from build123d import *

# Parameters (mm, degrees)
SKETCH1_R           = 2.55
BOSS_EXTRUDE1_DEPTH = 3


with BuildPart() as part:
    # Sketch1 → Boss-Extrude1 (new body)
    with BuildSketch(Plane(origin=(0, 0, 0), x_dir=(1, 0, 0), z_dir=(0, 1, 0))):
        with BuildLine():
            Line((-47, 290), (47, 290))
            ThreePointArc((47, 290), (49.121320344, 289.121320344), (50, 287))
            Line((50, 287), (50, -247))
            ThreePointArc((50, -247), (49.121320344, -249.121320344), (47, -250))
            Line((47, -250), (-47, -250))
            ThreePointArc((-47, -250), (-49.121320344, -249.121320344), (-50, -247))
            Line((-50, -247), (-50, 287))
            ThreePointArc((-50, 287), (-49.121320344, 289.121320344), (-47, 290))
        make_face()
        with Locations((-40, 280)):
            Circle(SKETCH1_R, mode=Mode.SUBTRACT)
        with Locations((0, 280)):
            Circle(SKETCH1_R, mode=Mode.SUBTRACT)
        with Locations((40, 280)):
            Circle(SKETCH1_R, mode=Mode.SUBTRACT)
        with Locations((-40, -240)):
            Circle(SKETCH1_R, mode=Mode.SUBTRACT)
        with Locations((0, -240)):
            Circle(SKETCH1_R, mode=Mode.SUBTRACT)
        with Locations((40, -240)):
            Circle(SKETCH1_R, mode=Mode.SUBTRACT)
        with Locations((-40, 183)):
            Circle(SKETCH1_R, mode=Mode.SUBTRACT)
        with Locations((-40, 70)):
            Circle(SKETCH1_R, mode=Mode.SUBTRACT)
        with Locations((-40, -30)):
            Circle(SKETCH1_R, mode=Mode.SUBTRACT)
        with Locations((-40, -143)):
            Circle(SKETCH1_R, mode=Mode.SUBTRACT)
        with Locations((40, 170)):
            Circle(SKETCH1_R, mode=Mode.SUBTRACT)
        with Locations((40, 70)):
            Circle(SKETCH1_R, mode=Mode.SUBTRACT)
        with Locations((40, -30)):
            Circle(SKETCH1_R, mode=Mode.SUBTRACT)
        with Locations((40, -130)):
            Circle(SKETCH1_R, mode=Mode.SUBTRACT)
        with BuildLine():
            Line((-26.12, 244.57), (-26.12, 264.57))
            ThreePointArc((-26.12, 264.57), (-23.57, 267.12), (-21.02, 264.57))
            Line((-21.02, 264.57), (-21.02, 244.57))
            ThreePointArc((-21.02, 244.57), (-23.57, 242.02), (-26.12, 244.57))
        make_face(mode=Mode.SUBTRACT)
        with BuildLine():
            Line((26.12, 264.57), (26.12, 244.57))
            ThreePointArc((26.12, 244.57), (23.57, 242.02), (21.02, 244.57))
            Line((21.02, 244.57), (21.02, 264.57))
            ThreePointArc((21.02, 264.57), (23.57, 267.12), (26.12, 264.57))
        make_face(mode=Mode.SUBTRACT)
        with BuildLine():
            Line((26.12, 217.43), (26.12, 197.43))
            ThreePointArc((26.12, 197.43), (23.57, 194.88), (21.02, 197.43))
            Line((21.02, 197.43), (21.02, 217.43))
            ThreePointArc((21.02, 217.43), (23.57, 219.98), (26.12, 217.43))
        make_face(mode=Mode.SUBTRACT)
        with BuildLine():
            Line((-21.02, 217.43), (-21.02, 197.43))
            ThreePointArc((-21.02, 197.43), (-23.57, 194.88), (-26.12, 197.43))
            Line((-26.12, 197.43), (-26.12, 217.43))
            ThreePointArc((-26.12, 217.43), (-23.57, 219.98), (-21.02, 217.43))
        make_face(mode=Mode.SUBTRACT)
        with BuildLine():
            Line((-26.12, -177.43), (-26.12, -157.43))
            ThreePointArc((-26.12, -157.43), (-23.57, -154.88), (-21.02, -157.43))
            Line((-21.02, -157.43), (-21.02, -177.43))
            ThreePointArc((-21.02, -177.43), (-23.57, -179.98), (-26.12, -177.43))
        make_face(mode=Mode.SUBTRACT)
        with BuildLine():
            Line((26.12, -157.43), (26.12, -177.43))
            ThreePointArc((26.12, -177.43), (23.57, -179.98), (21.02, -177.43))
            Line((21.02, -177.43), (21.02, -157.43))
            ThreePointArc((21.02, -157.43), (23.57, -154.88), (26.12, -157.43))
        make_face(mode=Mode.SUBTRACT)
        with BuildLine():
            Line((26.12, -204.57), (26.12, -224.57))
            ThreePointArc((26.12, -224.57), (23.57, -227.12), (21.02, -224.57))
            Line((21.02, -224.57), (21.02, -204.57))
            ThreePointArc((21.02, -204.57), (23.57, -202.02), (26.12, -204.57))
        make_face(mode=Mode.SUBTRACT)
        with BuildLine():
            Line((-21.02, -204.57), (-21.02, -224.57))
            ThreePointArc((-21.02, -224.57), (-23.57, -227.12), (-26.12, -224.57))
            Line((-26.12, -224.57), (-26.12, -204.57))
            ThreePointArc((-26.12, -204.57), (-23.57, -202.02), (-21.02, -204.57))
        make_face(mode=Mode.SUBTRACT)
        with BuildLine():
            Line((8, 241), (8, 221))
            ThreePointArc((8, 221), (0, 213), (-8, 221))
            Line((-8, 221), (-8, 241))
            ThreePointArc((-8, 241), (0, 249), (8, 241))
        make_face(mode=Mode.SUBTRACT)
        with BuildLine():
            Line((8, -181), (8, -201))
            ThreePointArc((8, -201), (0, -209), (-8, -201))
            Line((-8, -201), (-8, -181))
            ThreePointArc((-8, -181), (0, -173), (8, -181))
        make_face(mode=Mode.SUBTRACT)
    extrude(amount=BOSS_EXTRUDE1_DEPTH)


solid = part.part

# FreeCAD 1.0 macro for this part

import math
import FreeCAD as App
import Part
import Sketcher
from FreeCAD import Vector

doc = App.newDocument("Part")
params = doc.addObject("Spreadsheet::Sheet", "Params")
for row, (alias, value) in enumerate([
    ("sketch1_radius", "3 mm"),
    ("sketch1_radius2", "8 mm"),
    ("sketch1_diameter", "5.1 mm"),
    ("sketch1_width", "94 mm"),
    ("sketch1_height", "534 mm"),
    ("pad1_length", "3 mm"),
], start=1):
    params.set(f"A{row}", alias)
    params.set(f"B{row}", "=" + value)
    params.setAlias(f"B{row}", alias)

body = doc.addObject("PartDesign::Body", "Body")

# Sketch on XZ plane
sketch1 = body.newObject("Sketcher::SketchObject", "Sketch")
sketch1.AttachmentSupport = (doc.getObject("XZ_Plane"), [""])
sketch1.MapMode = "FlatFace"
sketch1.addGeometry([
    Part.LineSegment(Vector(47, -290, 0), Vector(-47, -290, 0)),  # 0
    Part.ArcOfCircle(Part.Circle(Vector(-47, -287, 0), Vector(0, 0, 1), 3), math.radians(180), math.radians(270)),  # 1
    Part.LineSegment(Vector(-50, -287, 0), Vector(-50, 247, 0)),  # 2
    Part.ArcOfCircle(Part.Circle(Vector(-47, 247, 0), Vector(0, 0, 1), 3), math.radians(90), math.radians(180)),  # 3
    Part.LineSegment(Vector(-47, 250, 0), Vector(47, 250, 0)),  # 4
    Part.ArcOfCircle(Part.Circle(Vector(47, 247, 0), Vector(0, 0, 1), 3), math.radians(0), math.radians(90)),  # 5
    Part.LineSegment(Vector(50, 247, 0), Vector(50, -287, 0)),  # 6
    Part.ArcOfCircle(Part.Circle(Vector(47, -287, 0), Vector(0, 0, 1), 3), math.radians(-90), math.radians(0)),  # 7
    Part.Circle(Vector(40, 240, 0), Vector(0, 0, 1), 2.5),  # 8
    Part.LineSegment(Vector(26.1, 204.6, 0), Vector(26.1, 224.6, 0)),  # 9
    Part.ArcOfCircle(Part.Circle(Vector(23.6, 224.6, 0), Vector(0, 0, 1), 2.5), math.radians(0), math.radians(180)),  # 10
    Part.LineSegment(Vector(21, 224.6, 0), Vector(21, 204.6, 0)),  # 11
    Part.ArcOfCircle(Part.Circle(Vector(23.6, 204.6, 0), Vector(0, 0, 1), 2.5), math.radians(180), math.radians(360)),  # 12
    Part.Circle(Vector(40, 130, 0), Vector(0, 0, 1), 2.5),  # 13
    Part.LineSegment(Vector(26.1, 157.4, 0), Vector(26.1, 177.4, 0)),  # 14
    Part.ArcOfCircle(Part.Circle(Vector(23.6, 177.4, 0), Vector(0, 0, 1), 2.5), math.radians(0), math.radians(180)),  # 15
    Part.LineSegment(Vector(21, 177.4, 0), Vector(21, 157.4, 0)),  # 16
    Part.ArcOfCircle(Part.Circle(Vector(23.6, 157.4, 0), Vector(0, 0, 1), 2.5), math.radians(180), math.radians(360)),  # 17
    Part.Circle(Vector(0, 240, 0), Vector(0, 0, 1), 2.5),  # 18
    Part.LineSegment(Vector(8, 181, 0), Vector(8, 201, 0)),  # 19
    Part.ArcOfCircle(Part.Circle(Vector(0, 201, 0), Vector(0, 0, 1), 8), math.radians(0), math.radians(180)),  # 20
    Part.LineSegment(Vector(-8, 201, 0), Vector(-8, 181, 0)),  # 21
    Part.ArcOfCircle(Part.Circle(Vector(0, 181, 0), Vector(0, 0, 1), 8), math.radians(180), math.radians(360)),  # 22
    Part.Circle(Vector(40, 30, 0), Vector(0, 0, 1), 2.5),  # 23
    Part.LineSegment(Vector(-21, 204.6, 0), Vector(-21, 224.6, 0)),  # 24
    Part.ArcOfCircle(Part.Circle(Vector(-23.6, 224.6, 0), Vector(0, 0, 1), 2.5), math.radians(0), math.radians(180)),  # 25
    Part.LineSegment(Vector(-26.1, 224.6, 0), Vector(-26.1, 204.6, 0)),  # 26
    Part.ArcOfCircle(Part.Circle(Vector(-23.6, 204.6, 0), Vector(0, 0, 1), 2.5), math.radians(180), math.radians(360)),  # 27
    Part.Circle(Vector(-40, 240, 0), Vector(0, 0, 1), 2.5),  # 28
    Part.LineSegment(Vector(-26.1, 177.4, 0), Vector(-26.1, 157.4, 0)),  # 29
    Part.ArcOfCircle(Part.Circle(Vector(-23.6, 157.4, 0), Vector(0, 0, 1), 2.5), math.radians(180), math.radians(360)),  # 30
    Part.LineSegment(Vector(-21, 157.4, 0), Vector(-21, 177.4, 0)),  # 31
    Part.ArcOfCircle(Part.Circle(Vector(-23.6, 177.4, 0), Vector(0, 0, 1), 2.5), math.radians(0), math.radians(180)),  # 32
    Part.Circle(Vector(-40, 143, 0), Vector(0, 0, 1), 2.5),  # 33
    Part.Circle(Vector(-40, 30, 0), Vector(0, 0, 1), 2.5),  # 34
    Part.Circle(Vector(40, -70, 0), Vector(0, 0, 1), 2.5),  # 35
    Part.Circle(Vector(40, -170, 0), Vector(0, 0, 1), 2.5),  # 36
    Part.LineSegment(Vector(26.1, -217.4, 0), Vector(26.1, -197.4, 0)),  # 37
    Part.ArcOfCircle(Part.Circle(Vector(23.6, -197.4, 0), Vector(0, 0, 1), 2.5), math.radians(0), math.radians(180)),  # 38
    Part.LineSegment(Vector(21, -197.4, 0), Vector(21, -217.4, 0)),  # 39
    Part.ArcOfCircle(Part.Circle(Vector(23.6, -217.4, 0), Vector(0, 0, 1), 2.5), math.radians(180), math.radians(360)),  # 40
    Part.Circle(Vector(40, -280, 0), Vector(0, 0, 1), 2.5),  # 41
    Part.LineSegment(Vector(26.1, -264.6, 0), Vector(26.1, -244.6, 0)),  # 42
    Part.ArcOfCircle(Part.Circle(Vector(23.6, -244.6, 0), Vector(0, 0, 1), 2.5), math.radians(0), math.radians(180)),  # 43
    Part.LineSegment(Vector(21, -244.6, 0), Vector(21, -264.6, 0)),  # 44
    Part.ArcOfCircle(Part.Circle(Vector(23.6, -264.6, 0), Vector(0, 0, 1), 2.5), math.radians(180), math.radians(360)),  # 45
    Part.LineSegment(Vector(8, -241, 0), Vector(8, -221, 0)),  # 46
    Part.ArcOfCircle(Part.Circle(Vector(0, -221, 0), Vector(0, 0, 1), 8), math.radians(0), math.radians(180)),  # 47
    Part.LineSegment(Vector(-8, -221, 0), Vector(-8, -241, 0)),  # 48
    Part.ArcOfCircle(Part.Circle(Vector(0, -241, 0), Vector(0, 0, 1), 8), math.radians(180), math.radians(360)),  # 49
    Part.Circle(Vector(0, -280, 0), Vector(0, 0, 1), 2.5),  # 50
    Part.Circle(Vector(-40, -70, 0), Vector(0, 0, 1), 2.5),  # 51
    Part.LineSegment(Vector(-21, -217.4, 0), Vector(-21, -197.4, 0)),  # 52
    Part.ArcOfCircle(Part.Circle(Vector(-23.6, -197.4, 0), Vector(0, 0, 1), 2.5), math.radians(0), math.radians(180)),  # 53
    Part.LineSegment(Vector(-26.1, -197.4, 0), Vector(-26.1, -217.4, 0)),  # 54
    Part.ArcOfCircle(Part.Circle(Vector(-23.6, -217.4, 0), Vector(0, 0, 1), 2.5), math.radians(180), math.radians(360)),  # 55
    Part.Circle(Vector(-40, -183, 0), Vector(0, 0, 1), 2.5),  # 56
    Part.LineSegment(Vector(-26.1, -244.6, 0), Vector(-26.1, -264.6, 0)),  # 57
    Part.ArcOfCircle(Part.Circle(Vector(-23.6, -264.6, 0), Vector(0, 0, 1), 2.5), math.radians(180), math.radians(360)),  # 58
    Part.LineSegment(Vector(-21, -264.6, 0), Vector(-21, -244.6, 0)),  # 59
    Part.ArcOfCircle(Part.Circle(Vector(-23.6, -244.6, 0), Vector(0, 0, 1), 2.5), math.radians(0), math.radians(180)),  # 60
    Part.Circle(Vector(-40, -280, 0), Vector(0, 0, 1), 2.5),  # 61
], False)
sketch1.addConstraint([
    Sketcher.Constraint("Tangent", 0, 2, 1, 2),
    Sketcher.Constraint("Tangent", 1, 1, 2, 1),
    Sketcher.Constraint("Tangent", 2, 2, 3, 2),
    Sketcher.Constraint("Tangent", 3, 1, 4, 1),
    Sketcher.Constraint("Tangent", 4, 2, 5, 2),
    Sketcher.Constraint("Tangent", 5, 1, 6, 1),
    Sketcher.Constraint("Tangent", 6, 2, 7, 2),
    Sketcher.Constraint("Tangent", 7, 1, 0, 1),
    Sketcher.Constraint("Tangent", 9, 2, 10, 1),
    Sketcher.Constraint("Tangent", 10, 2, 11, 1),
    Sketcher.Constraint("Tangent", 11, 2, 12, 1),
    Sketcher.Constraint("Tangent", 12, 2, 9, 1),
    Sketcher.Constraint("Tangent", 14, 2, 15, 1),
    Sketcher.Constraint("Tangent", 15, 2, 16, 1),
    Sketcher.Constraint("Tangent", 16, 2, 17, 1),
    Sketcher.Constraint("Tangent", 17, 2, 14, 1),
    Sketcher.Constraint("Tangent", 19, 2, 20, 1),
    Sketcher.Constraint("Tangent", 20, 2, 21, 1),
    Sketcher.Constraint("Tangent", 21, 2, 22, 1),
    Sketcher.Constraint("Tangent", 22, 2, 19, 1),
    Sketcher.Constraint("Tangent", 24, 2, 25, 1),
    Sketcher.Constraint("Tangent", 25, 2, 26, 1),
    Sketcher.Constraint("Tangent", 26, 2, 27, 1),
    Sketcher.Constraint("Tangent", 27, 2, 24, 1),
    Sketcher.Constraint("Tangent", 29, 2, 30, 1),
    Sketcher.Constraint("Tangent", 30, 2, 31, 1),
    Sketcher.Constraint("Tangent", 31, 2, 32, 1),
    Sketcher.Constraint("Tangent", 32, 2, 29, 1),
    Sketcher.Constraint("Tangent", 37, 2, 38, 1),
    Sketcher.Constraint("Tangent", 38, 2, 39, 1),
    Sketcher.Constraint("Tangent", 39, 2, 40, 1),
    Sketcher.Constraint("Tangent", 40, 2, 37, 1),
    Sketcher.Constraint("Tangent", 42, 2, 43, 1),
    Sketcher.Constraint("Tangent", 43, 2, 44, 1),
    Sketcher.Constraint("Tangent", 44, 2, 45, 1),
    Sketcher.Constraint("Tangent", 45, 2, 42, 1),
    Sketcher.Constraint("Tangent", 46, 2, 47, 1),
    Sketcher.Constraint("Tangent", 47, 2, 48, 1),
    Sketcher.Constraint("Tangent", 48, 2, 49, 1),
    Sketcher.Constraint("Tangent", 49, 2, 46, 1),
    Sketcher.Constraint("Tangent", 52, 2, 53, 1),
    Sketcher.Constraint("Tangent", 53, 2, 54, 1),
    Sketcher.Constraint("Tangent", 54, 2, 55, 1),
    Sketcher.Constraint("Tangent", 55, 2, 52, 1),
    Sketcher.Constraint("Tangent", 57, 2, 58, 1),
    Sketcher.Constraint("Tangent", 58, 2, 59, 1),
    Sketcher.Constraint("Tangent", 59, 2, 60, 1),
    Sketcher.Constraint("Tangent", 60, 2, 57, 1),
    Sketcher.Constraint("Horizontal", 0),
    Sketcher.Constraint("Vertical", 2),
    Sketcher.Constraint("Horizontal", 4),
    Sketcher.Constraint("Vertical", 6),
    Sketcher.Constraint("Vertical", 9),
    Sketcher.Constraint("Vertical", 11),
    Sketcher.Constraint("Vertical", 14),
    Sketcher.Constraint("Vertical", 16),
    Sketcher.Constraint("Vertical", 19),
    Sketcher.Constraint("Vertical", 21),
    Sketcher.Constraint("Vertical", 24),
    Sketcher.Constraint("Vertical", 26),
    Sketcher.Constraint("Vertical", 29),
    Sketcher.Constraint("Vertical", 31),
    Sketcher.Constraint("Vertical", 37),
    Sketcher.Constraint("Vertical", 39),
    Sketcher.Constraint("Vertical", 42),
    Sketcher.Constraint("Vertical", 44),
    Sketcher.Constraint("Vertical", 46),
    Sketcher.Constraint("Vertical", 48),
    Sketcher.Constraint("Vertical", 52),
    Sketcher.Constraint("Vertical", 54),
    Sketcher.Constraint("Vertical", 57),
    Sketcher.Constraint("Vertical", 59),
    Sketcher.Constraint("Equal", 1, 3),
    Sketcher.Constraint("Equal", 3, 5),
    Sketcher.Constraint("Equal", 5, 7),
    Sketcher.Constraint("Equal", 8, 10),
    Sketcher.Constraint("Equal", 12, 13),
    Sketcher.Constraint("Equal", 13, 15),
    Sketcher.Constraint("Equal", 17, 18),
    Sketcher.Constraint("Equal", 18, 23),
    Sketcher.Constraint("Equal", 23, 25),
    Sketcher.Constraint("Equal", 27, 28),
    Sketcher.Constraint("Equal", 28, 30),
    Sketcher.Constraint("Equal", 32, 33),
    Sketcher.Constraint("Equal", 33, 34),
    Sketcher.Constraint("Equal", 34, 35),
    Sketcher.Constraint("Equal", 35, 36),
    Sketcher.Constraint("Equal", 36, 38),
    Sketcher.Constraint("Equal", 40, 41),
    Sketcher.Constraint("Equal", 41, 43),
    Sketcher.Constraint("Equal", 22, 47),
    Sketcher.Constraint("Equal", 45, 50),
    Sketcher.Constraint("Equal", 50, 51),
    Sketcher.Constraint("Equal", 51, 53),
    Sketcher.Constraint("Equal", 55, 56),
    Sketcher.Constraint("Equal", 56, 58),
    Sketcher.Constraint("Equal", 60, 61),
    Sketcher.Constraint("Symmetric", 10, 3, 25, 3, -2),
    Sketcher.Constraint("Symmetric", 8, 3, 28, 3, -2),
    Sketcher.Constraint("Symmetric", 17, 3, 30, 3, -2),
    Sketcher.Constraint("Symmetric", 23, 3, 34, 3, -2),
    Sketcher.Constraint("Symmetric", 35, 3, 51, 3, -2),
    Sketcher.Constraint("Symmetric", 38, 3, 53, 3, -2),
    Sketcher.Constraint("Symmetric", 45, 3, 58, 3, -2),
    Sketcher.Constraint("Symmetric", 41, 3, 61, 3, -2),
    Sketcher.Constraint("PointOnObject", 18, 3, -2),
    Sketcher.Constraint("PointOnObject", 20, 3, -2),
    Sketcher.Constraint("PointOnObject", 47, 3, -2),
    Sketcher.Constraint("PointOnObject", 50, 3, -2),
    Sketcher.Constraint("Horizontal", 8, 3, 18, 3),
    Sketcher.Constraint("Horizontal", 12, 3, 27, 3),
    Sketcher.Constraint("Horizontal", 15, 3, 32, 3),
    Sketcher.Constraint("Horizontal", 41, 3, 50, 3),
    Sketcher.Constraint("Horizontal", 40, 3, 55, 3),
    Sketcher.Constraint("Horizontal", 43, 3, 60, 3),
    Sketcher.Constraint("Vertical", 8, 3, 13, 3),
    Sketcher.Constraint("Vertical", 12, 3, 15, 3),
    Sketcher.Constraint("Vertical", 13, 3, 23, 3),
    Sketcher.Constraint("Vertical", 28, 3, 33, 3),
    Sketcher.Constraint("Vertical", 23, 3, 35, 3),
    Sketcher.Constraint("Vertical", 35, 3, 36, 3),
    Sketcher.Constraint("Vertical", 17, 3, 38, 3),
    Sketcher.Constraint("Vertical", 36, 3, 41, 3),
    Sketcher.Constraint("Vertical", 40, 3, 43, 3),
    Sketcher.Constraint("Vertical", 51, 3, 56, 3),
    Sketcher.Constraint("Equal", 11, 14),
    Sketcher.Constraint("Equal", 16, 19),
    Sketcher.Constraint("Equal", 31, 37),
    Sketcher.Constraint("Equal", 39, 42),
    Sketcher.Constraint("Equal", 44, 46),
    Sketcher.Constraint("Radius", 1, 3.0),
    Sketcher.Constraint("Radius", 20, 8.0),
    Sketcher.Constraint("Diameter", 8, 5.1),
    Sketcher.Constraint("DistanceX", 0, 2, 0, 1, 94.0),
    Sketcher.Constraint("DistanceY", 2, 1, 2, 2, 534.0),
    Sketcher.Constraint("DistanceY", 9, 1, 9, 2, 20.0),
    Sketcher.Constraint("DistanceX", 1, 3, -1, 1, 47.0),
    Sketcher.Constraint("DistanceY", 1, 3, -1, 1, 287.0),
    Sketcher.Constraint("DistanceX", -1, 1, 8, 3, 40.0),
    Sketcher.Constraint("DistanceY", -1, 1, 8, 3, 240.0),
    Sketcher.Constraint("DistanceY", -1, 1, 13, 3, 130.0),
    Sketcher.Constraint("DistanceY", -1, 1, 20, 3, 201.0),
    Sketcher.Constraint("DistanceY", -1, 1, 23, 3, 30.0),
    Sketcher.Constraint("DistanceY", -1, 1, 33, 3, 143.0),
    Sketcher.Constraint("DistanceY", 35, 3, -1, 1, 70.0),
    Sketcher.Constraint("DistanceY", 36, 3, -1, 1, 170.0),
    Sketcher.Constraint("DistanceY", 41, 3, -1, 1, 280.0),
    Sketcher.Constraint("DistanceY", 47, 3, -1, 1, 221.0),
    Sketcher.Constraint("DistanceY", 56, 3, -1, 1, 183.0),
    Sketcher.Constraint("DistanceX", -1, 1, 10, 3, 23.57),
    Sketcher.Constraint("DistanceY", -1, 1, 10, 3, 224.57),
    Sketcher.Constraint("DistanceY", -1, 1, 15, 3, 177.43),
    Sketcher.Constraint("DistanceY", 38, 3, -1, 1, 197.43),
    Sketcher.Constraint("DistanceY", 43, 3, -1, 1, 244.57),
])
sketch1.setExpression("Constraints[130]", "Params.sketch1_radius")
sketch1.setExpression("Constraints[131]", "Params.sketch1_radius2")
sketch1.setExpression("Constraints[132]", "Params.sketch1_diameter")
sketch1.setExpression("Constraints[133]", "Params.sketch1_width")
sketch1.setExpression("Constraints[134]", "Params.sketch1_height")
pad1 = body.newObject("PartDesign::Pad", "Pad")
pad1.Profile = sketch1
pad1.setExpression("Length", "Params.pad1_length")
pad1.Reversed = True

doc.recompute()
